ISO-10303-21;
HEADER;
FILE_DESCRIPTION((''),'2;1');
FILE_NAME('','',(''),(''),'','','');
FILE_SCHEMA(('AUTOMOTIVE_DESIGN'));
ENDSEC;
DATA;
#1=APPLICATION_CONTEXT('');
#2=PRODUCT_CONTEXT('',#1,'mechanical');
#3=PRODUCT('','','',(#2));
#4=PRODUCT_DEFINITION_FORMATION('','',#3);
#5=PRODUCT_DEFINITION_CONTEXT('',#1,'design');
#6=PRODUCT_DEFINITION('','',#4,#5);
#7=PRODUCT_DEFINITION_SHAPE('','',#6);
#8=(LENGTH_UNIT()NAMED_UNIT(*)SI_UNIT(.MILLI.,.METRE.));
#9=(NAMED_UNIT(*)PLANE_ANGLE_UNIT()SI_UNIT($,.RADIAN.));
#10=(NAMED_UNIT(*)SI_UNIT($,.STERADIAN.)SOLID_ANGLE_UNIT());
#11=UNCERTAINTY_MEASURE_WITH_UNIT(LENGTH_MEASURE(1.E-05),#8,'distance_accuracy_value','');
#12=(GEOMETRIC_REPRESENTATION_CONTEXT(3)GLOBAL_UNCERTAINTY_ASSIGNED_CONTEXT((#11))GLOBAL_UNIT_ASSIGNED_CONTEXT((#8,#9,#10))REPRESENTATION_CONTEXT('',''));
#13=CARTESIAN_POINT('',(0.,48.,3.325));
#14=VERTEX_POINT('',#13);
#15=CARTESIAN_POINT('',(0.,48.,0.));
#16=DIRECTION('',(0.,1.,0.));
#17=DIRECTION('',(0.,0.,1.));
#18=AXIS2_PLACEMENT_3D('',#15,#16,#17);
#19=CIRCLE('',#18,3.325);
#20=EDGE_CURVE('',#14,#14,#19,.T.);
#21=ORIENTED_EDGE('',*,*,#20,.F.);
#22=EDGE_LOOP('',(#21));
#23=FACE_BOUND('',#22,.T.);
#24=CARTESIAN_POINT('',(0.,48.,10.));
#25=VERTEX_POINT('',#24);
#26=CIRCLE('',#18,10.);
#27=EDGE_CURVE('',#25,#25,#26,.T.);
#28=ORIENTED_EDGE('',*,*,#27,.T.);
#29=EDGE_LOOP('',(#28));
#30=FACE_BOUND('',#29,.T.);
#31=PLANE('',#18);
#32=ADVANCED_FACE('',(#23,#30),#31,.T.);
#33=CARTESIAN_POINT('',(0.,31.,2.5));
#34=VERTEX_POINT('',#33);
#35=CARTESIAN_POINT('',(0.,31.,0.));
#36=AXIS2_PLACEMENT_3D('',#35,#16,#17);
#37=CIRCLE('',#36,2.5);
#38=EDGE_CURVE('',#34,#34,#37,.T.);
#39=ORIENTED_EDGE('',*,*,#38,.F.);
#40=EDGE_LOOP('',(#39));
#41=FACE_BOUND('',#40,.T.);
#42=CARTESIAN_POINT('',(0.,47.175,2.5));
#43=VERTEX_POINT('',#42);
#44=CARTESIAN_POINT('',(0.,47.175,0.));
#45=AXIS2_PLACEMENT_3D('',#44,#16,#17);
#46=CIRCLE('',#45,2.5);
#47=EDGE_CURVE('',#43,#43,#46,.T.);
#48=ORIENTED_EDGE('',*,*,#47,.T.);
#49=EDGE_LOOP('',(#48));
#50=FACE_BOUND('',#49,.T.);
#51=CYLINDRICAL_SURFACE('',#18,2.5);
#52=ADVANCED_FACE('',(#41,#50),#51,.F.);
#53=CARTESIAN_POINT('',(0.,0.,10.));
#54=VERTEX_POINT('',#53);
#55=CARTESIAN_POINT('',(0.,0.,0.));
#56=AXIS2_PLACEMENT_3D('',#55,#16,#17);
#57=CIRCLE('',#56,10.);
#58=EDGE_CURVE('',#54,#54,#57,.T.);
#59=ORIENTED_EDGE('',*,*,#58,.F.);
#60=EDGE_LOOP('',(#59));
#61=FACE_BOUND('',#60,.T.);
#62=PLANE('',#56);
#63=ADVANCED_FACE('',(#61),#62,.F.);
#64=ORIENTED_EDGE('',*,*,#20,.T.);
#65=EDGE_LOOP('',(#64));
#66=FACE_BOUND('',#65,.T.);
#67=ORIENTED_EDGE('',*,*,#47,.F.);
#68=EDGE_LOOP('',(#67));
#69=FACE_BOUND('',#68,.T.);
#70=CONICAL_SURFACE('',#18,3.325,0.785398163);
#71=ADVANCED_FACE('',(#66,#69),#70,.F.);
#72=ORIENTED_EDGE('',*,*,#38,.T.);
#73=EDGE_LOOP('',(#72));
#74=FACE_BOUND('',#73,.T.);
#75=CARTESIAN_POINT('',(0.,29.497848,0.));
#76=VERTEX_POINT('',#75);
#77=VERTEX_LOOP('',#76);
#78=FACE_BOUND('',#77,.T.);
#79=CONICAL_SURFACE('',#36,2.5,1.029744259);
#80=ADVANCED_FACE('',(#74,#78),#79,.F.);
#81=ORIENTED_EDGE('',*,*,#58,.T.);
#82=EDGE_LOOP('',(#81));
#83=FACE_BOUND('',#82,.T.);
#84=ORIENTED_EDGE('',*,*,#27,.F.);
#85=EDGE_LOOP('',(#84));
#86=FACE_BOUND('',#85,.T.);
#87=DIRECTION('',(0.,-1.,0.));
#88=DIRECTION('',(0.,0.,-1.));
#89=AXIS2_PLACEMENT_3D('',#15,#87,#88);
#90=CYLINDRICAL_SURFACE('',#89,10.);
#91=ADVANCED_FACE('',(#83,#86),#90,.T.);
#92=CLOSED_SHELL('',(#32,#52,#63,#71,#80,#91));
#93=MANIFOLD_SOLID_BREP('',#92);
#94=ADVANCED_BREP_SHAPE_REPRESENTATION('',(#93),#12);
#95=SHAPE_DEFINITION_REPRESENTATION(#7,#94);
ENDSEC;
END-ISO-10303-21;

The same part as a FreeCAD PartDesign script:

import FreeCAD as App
import Part
import Sketcher
Q = App.Units.Quantity

doc = App.newDocument("Part")
params = doc.addObject("Spreadsheet::Sheet", "Params")
for row, (alias, value) in enumerate([
    ("sketch1_diameter", "20 mm"),
    ("pad1_length", "48 mm"),
    ("sketch2_diameter", "5 mm"),
    ("hole_diameter", "5 mm"),
    ("hole_depth", "17 mm"),
    ("hole_csink_diameter", "6.65 mm"),
], start=1):
    params.set(f"A{row}", alias)
    params.set(f"B{row}", "=" + value)
    params.setAlias(f"B{row}", alias)

body = doc.addObject("PartDesign::Body", "Body")

# Sketch on XZ plane
sketch1 = body.newObject("Sketcher::SketchObject", "Sketch")
sketch1.AttachmentSupport = (doc.getObject("XZ_Plane"), [""])
sketch1.MapMode = "FlatFace"
sketch1.addGeometry(Part.Circle(App.Vector(0, 0, 0), App.Vector(0, 0, 1), 10), False)
sketch1.addConstraint([
    Sketcher.Constraint("Coincident", 0, 3, -1, 1),
    Sketcher.Constraint("Diameter", 0, Q("20 mm")),
])
sketch1.setExpression("Constraints[1]", "Params.sketch1_diameter")
pad1 = body.newObject("PartDesign::Pad", "Pad")
pad1.Profile = sketch1
pad1.setExpression("Length", "Params.pad1_length")
pad1.Reversed = True

# Sketch on XZ plane
sketch2 = body.newObject("Sketcher::SketchObject", "Sketch001")
sketch2.AttachmentSupport = (doc.getObject("XZ_Plane"), [""])
sketch2.MapMode = "FlatFace"
sketch2.AttachmentOffset = App.Placement(App.Vector(0, 0, -48), App.Rotation())
sketch2.addGeometry(Part.Circle(App.Vector(0, 0, 0), App.Vector(0, 0, 1), 2.5), False)
sketch2.addConstraint([
    Sketcher.Constraint("Coincident", 0, 3, -1, 1),
    Sketcher.Constraint("Diameter", 0, Q("5 mm")),
])
sketch2.setExpression("Constraints[1]", "Params.sketch2_diameter")
doc.recompute()
hole = body.newObject("PartDesign::Hole", "Hole")
hole.Profile = sketch2
hole.ThreadType = "None"
hole.setExpression("Diameter", "Params.hole_diameter")
hole.DepthType = "Dimension"
hole.setExpression("Depth", "Params.hole_depth")
hole.DrillPoint = "Angled"
hole.DrillPointAngle = 118
hole.HoleCutType = "Countersink"
hole.setExpression("HoleCutDiameter", "Params.hole_csink_diameter")
hole.HoleCutCountersinkAngle = 90
hole.Reversed = True

doc.recompute()
